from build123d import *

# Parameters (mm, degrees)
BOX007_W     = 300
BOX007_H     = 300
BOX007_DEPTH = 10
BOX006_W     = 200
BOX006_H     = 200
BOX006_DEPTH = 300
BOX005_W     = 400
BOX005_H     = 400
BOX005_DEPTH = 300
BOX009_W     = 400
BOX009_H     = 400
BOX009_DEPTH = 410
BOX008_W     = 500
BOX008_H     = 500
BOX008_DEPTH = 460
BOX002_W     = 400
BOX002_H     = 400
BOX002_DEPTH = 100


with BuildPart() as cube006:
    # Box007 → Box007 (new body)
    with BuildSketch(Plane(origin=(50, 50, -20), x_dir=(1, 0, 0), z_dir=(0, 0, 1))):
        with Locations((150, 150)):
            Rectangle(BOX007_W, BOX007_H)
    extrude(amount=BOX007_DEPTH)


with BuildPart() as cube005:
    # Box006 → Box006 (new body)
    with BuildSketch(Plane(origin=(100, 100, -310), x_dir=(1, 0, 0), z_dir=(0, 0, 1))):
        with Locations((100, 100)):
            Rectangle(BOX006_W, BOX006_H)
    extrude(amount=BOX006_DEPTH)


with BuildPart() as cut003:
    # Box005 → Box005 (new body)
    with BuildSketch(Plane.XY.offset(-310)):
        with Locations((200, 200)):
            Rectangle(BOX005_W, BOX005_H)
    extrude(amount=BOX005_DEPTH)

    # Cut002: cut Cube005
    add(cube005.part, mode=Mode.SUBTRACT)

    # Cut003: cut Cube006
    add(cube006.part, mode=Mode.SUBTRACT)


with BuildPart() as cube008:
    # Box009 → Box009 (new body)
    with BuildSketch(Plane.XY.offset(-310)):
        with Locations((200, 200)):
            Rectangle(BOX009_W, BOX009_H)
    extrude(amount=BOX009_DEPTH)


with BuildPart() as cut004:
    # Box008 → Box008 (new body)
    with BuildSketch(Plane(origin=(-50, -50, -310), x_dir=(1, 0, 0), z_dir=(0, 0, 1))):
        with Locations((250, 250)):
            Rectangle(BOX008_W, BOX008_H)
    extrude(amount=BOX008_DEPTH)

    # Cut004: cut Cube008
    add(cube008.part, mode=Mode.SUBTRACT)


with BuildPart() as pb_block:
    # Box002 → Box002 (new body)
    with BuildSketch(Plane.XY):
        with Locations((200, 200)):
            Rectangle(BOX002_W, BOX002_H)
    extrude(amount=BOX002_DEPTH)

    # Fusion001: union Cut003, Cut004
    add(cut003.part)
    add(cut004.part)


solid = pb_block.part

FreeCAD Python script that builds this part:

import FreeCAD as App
import Part
import Sketcher

V = App.Vector
Q = App.Units.Quantity


def add_polygon(sketch, points):
    """Adds a closed chain of lines whose ends are joined by coincident constraints."""
    first, n = sketch.GeometryCount, len(points)
    for a, b in zip(points, points[1:] + points[:1]):
        sketch.addGeometry(Part.LineSegment(App.Vector(*a, 0), App.Vector(*b, 0)), False)
    for i in range(n):
        sketch.addConstraint(Sketcher.Constraint("Coincident", first + i, 2, first + (i + 1) % n, 1))

doc = App.newDocument("Part")
body = doc.addObject("PartDesign::Body", "Body")

sketch1 = doc.addObject("Sketcher::SketchObject", "Sketch")
body.addObject(sketch1)
sketch1.AttachmentSupport = (doc.XY_Plane, [""])
sketch1.MapMode = "FlatFace"
sketch1.AttachmentOffset = App.Placement(V(0, 0, -20), App.Rotation())
add_polygon(sketch1, [(50, 350), (50, 50), (350, 50), (350, 350)])
sketch1.addConstraint(Sketcher.Constraint("Vertical", 0))
sketch1.addConstraint(Sketcher.Constraint("Horizontal", 1))
sketch1.addConstraint(Sketcher.Constraint("Vertical", 2))
sketch1.addConstraint(Sketcher.Constraint("Horizontal", 3))
sketch1.addConstraint(Sketcher.Constraint("Equal", 3, 0))
sketch1.addConstraint(Sketcher.Constraint("DistanceX", 1, 1, 1, 2, Q("300 mm")))
sketch1.addConstraint(Sketcher.Constraint("DistanceX", -1, 1, 0, 2, Q("50 mm")))
sketch1.addConstraint(Sketcher.Constraint("DistanceY", -1, 1, 0, 2, Q("50 mm")))
pad1 = doc.addObject("PartDesign::Pad", "Pad")
body.addObject(pad1)
pad1.Profile = sketch1
pad1.Length = 10
body2 = doc.addObject("PartDesign::Body", "Body001")

sketch2 = doc.addObject("Sketcher::SketchObject", "Sketch001")
body2.addObject(sketch2)
sketch2.AttachmentSupport = (doc.getObject("XY_Plane001"), [""])
sketch2.MapMode = "FlatFace"
sketch2.AttachmentOffset = App.Placement(V(0, 0, -310), App.Rotation())
add_polygon(sketch2, [(100, 300), (100, 100), (300, 100), (300, 300)])
sketch2.addConstraint(Sketcher.Constraint("Vertical", 0))
sketch2.addConstraint(Sketcher.Constraint("Horizontal", 1))
sketch2.addConstraint(Sketcher.Constraint("Vertical", 2))
sketch2.addConstraint(Sketcher.Constraint("Horizontal", 3))
sketch2.addConstraint(Sketcher.Constraint("Equal", 3, 0))
sketch2.addConstraint(Sketcher.Constraint("DistanceX", 1, 1, 1, 2, Q("200 mm")))
sketch2.addConstraint(Sketcher.Constraint("DistanceX", -1, 1, 0, 2, Q("100 mm")))
sketch2.addConstraint(Sketcher.Constraint("DistanceY", -1, 1, 0, 2, Q("100 mm")))
pad2 = doc.addObject("PartDesign::Pad", "Pad001")
body2.addObject(pad2)
pad2.Profile = sketch2
pad2.Length = 300
body3 = doc.addObject("PartDesign::Body", "Body002")

sketch3 = doc.addObject("Sketcher::SketchObject", "Sketch002")
body3.addObject(sketch3)
sketch3.AttachmentSupport = (doc.getObject("XY_Plane002"), [""])
sketch3.MapMode = "FlatFace"
sketch3.AttachmentOffset = App.Placement(V(0, 0, -310), App.Rotation())
add_polygon(sketch3, [(0, 400), (0, 0), (400, 0), (400, 400)])
sketch3.addConstraint(Sketcher.Constraint("Vertical", 0))
sketch3.addConstraint(Sketcher.Constraint("Horizontal", 1))
sketch3.addConstraint(Sketcher.Constraint("Vertical", 2))
sketch3.addConstraint(Sketcher.Constraint("Horizontal", 3))
sketch3.addConstraint(Sketcher.Constraint("Coincident", 0, 2, -1, 1))
sketch3.addConstraint(Sketcher.Constraint("Equal", 3, 0))
sketch3.addConstraint(Sketcher.Constraint("DistanceX", 1, 1, 1, 2, Q("400 mm")))
pad3 = doc.addObject("PartDesign::Pad", "Pad002")
body3.addObject(pad3)
pad3.Profile = sketch3
pad3.Length = 300
doc.recompute()

boolean = doc.addObject("PartDesign::Boolean", "Boolean")
body3.addObject(boolean)
boolean.Type = "Cut"
boolean.addObjects([body2])
doc.recompute()

boolean2 = doc.addObject("PartDesign::Boolean", "Boolean001")
body3.addObject(boolean2)
boolean2.Type = "Cut"
boolean2.addObjects([body])
body4 = doc.addObject("PartDesign::Body", "Body003")

sketch4 = doc.addObject("Sketcher::SketchObject", "Sketch003")
body4.addObject(sketch4)
sketch4.AttachmentSupport = (doc.getObject("XY_Plane003"), [""])
sketch4.MapMode = "FlatFace"
sketch4.AttachmentOffset = App.Placement(V(0, 0, -310), App.Rotation())
add_polygon(sketch4, [(0, 400), (0, 0), (400, 0), (400, 400)])
sketch4.addConstraint(Sketcher.Constraint("Vertical", 0))
sketch4.addConstraint(Sketcher.Constraint("Horizontal", 1))
sketch4.addConstraint(Sketcher.Constraint("Vertical", 2))
sketch4.addConstraint(Sketcher.Constraint("Horizontal", 3))
sketch4.addConstraint(Sketcher.Constraint("Coincident", 0, 2, -1, 1))
sketch4.addConstraint(Sketcher.Constraint("Equal", 3, 0))
sketch4.addConstraint(Sketcher.Constraint("DistanceX", 1, 1, 1, 2, Q("400 mm")))
pad4 = doc.addObject("PartDesign::Pad", "Pad003")
body4.addObject(pad4)
pad4.Profile = sketch4
pad4.Length = 410
body5 = doc.addObject("PartDesign::Body", "Body004")

sketch5 = doc.addObject("Sketcher::SketchObject", "Sketch004")
body5.addObject(sketch5)
sketch5.AttachmentSupport = (doc.getObject("XY_Plane004"), [""])
sketch5.MapMode = "FlatFace"
sketch5.AttachmentOffset = App.Placement(V(0, 0, -310), App.Rotation())
add_polygon(sketch5, [(-50, 450), (-50, -50), (450, -50), (450, 450)])
sketch5.addConstraint(Sketcher.Constraint("Vertical", 0))
sketch5.addConstraint(Sketcher.Constraint("Horizontal", 1))
sketch5.addConstraint(Sketcher.Constraint("Vertical", 2))
sketch5.addConstraint(Sketcher.Constraint("Horizontal", 3))
sketch5.addConstraint(Sketcher.Constraint("Equal", 3, 0))
sketch5.addConstraint(Sketcher.Constraint("DistanceX", 1, 1, 1, 2, Q("500 mm")))
sketch5.addConstraint(Sketcher.Constraint("DistanceX", 0, 2, -1, 1, Q("50 mm")))
sketch5.addConstraint(Sketcher.Constraint("DistanceY", 0, 2, -1, 1, Q("50 mm")))
pad5 = doc.addObject("PartDesign::Pad", "Pad004")
body5.addObject(pad5)
pad5.Profile = sketch5
pad5.Length = 460
doc.recompute()

boolean3 = doc.addObject("PartDesign::Boolean", "Boolean002")
body5.addObject(boolean3)
boolean3.Type = "Cut"
boolean3.addObjects([body4])
body6 = doc.addObject("PartDesign::Body", "Body005")
body6.AllowCompound = True

sketch6 = doc.addObject("Sketcher::SketchObject", "Sketch005")
body6.addObject(sketch6)
sketch6.AttachmentSupport = (doc.getObject("XY_Plane005"), [""])
sketch6.MapMode = "FlatFace"
add_polygon(sketch6, [(0, 400), (0, 0), (400, 0), (400, 400)])
sketch6.addConstraint(Sketcher.Constraint("Vertical", 0))
sketch6.addConstraint(Sketcher.Constraint("Horizontal", 1))
sketch6.addConstraint(Sketcher.Constraint("Vertical", 2))
sketch6.addConstraint(Sketcher.Constraint("Horizontal", 3))
sketch6.addConstraint(Sketcher.Constraint("Coincident", 0, 2, -1, 1))
sketch6.addConstraint(Sketcher.Constraint("Equal", 3, 0))
sketch6.addConstraint(Sketcher.Constraint("DistanceX", 1, 1, 1, 2, Q("400 mm")))
pad6 = doc.addObject("PartDesign::Pad", "Pad005")
body6.addObject(pad6)
pad6.Profile = sketch6
pad6.Length = 100
doc.recompute()

boolean4 = doc.addObject("PartDesign::Boolean", "Boolean003")
body6.addObject(boolean4)
boolean4.Type = "Fuse"
boolean4.addObjects([body3])
doc.recompute()

boolean5 = doc.addObject("PartDesign::Boolean", "Boolean004")
body6.addObject(boolean5)
boolean5.Type = "Fuse"
boolean5.addObjects([body5])

doc.recompute()
